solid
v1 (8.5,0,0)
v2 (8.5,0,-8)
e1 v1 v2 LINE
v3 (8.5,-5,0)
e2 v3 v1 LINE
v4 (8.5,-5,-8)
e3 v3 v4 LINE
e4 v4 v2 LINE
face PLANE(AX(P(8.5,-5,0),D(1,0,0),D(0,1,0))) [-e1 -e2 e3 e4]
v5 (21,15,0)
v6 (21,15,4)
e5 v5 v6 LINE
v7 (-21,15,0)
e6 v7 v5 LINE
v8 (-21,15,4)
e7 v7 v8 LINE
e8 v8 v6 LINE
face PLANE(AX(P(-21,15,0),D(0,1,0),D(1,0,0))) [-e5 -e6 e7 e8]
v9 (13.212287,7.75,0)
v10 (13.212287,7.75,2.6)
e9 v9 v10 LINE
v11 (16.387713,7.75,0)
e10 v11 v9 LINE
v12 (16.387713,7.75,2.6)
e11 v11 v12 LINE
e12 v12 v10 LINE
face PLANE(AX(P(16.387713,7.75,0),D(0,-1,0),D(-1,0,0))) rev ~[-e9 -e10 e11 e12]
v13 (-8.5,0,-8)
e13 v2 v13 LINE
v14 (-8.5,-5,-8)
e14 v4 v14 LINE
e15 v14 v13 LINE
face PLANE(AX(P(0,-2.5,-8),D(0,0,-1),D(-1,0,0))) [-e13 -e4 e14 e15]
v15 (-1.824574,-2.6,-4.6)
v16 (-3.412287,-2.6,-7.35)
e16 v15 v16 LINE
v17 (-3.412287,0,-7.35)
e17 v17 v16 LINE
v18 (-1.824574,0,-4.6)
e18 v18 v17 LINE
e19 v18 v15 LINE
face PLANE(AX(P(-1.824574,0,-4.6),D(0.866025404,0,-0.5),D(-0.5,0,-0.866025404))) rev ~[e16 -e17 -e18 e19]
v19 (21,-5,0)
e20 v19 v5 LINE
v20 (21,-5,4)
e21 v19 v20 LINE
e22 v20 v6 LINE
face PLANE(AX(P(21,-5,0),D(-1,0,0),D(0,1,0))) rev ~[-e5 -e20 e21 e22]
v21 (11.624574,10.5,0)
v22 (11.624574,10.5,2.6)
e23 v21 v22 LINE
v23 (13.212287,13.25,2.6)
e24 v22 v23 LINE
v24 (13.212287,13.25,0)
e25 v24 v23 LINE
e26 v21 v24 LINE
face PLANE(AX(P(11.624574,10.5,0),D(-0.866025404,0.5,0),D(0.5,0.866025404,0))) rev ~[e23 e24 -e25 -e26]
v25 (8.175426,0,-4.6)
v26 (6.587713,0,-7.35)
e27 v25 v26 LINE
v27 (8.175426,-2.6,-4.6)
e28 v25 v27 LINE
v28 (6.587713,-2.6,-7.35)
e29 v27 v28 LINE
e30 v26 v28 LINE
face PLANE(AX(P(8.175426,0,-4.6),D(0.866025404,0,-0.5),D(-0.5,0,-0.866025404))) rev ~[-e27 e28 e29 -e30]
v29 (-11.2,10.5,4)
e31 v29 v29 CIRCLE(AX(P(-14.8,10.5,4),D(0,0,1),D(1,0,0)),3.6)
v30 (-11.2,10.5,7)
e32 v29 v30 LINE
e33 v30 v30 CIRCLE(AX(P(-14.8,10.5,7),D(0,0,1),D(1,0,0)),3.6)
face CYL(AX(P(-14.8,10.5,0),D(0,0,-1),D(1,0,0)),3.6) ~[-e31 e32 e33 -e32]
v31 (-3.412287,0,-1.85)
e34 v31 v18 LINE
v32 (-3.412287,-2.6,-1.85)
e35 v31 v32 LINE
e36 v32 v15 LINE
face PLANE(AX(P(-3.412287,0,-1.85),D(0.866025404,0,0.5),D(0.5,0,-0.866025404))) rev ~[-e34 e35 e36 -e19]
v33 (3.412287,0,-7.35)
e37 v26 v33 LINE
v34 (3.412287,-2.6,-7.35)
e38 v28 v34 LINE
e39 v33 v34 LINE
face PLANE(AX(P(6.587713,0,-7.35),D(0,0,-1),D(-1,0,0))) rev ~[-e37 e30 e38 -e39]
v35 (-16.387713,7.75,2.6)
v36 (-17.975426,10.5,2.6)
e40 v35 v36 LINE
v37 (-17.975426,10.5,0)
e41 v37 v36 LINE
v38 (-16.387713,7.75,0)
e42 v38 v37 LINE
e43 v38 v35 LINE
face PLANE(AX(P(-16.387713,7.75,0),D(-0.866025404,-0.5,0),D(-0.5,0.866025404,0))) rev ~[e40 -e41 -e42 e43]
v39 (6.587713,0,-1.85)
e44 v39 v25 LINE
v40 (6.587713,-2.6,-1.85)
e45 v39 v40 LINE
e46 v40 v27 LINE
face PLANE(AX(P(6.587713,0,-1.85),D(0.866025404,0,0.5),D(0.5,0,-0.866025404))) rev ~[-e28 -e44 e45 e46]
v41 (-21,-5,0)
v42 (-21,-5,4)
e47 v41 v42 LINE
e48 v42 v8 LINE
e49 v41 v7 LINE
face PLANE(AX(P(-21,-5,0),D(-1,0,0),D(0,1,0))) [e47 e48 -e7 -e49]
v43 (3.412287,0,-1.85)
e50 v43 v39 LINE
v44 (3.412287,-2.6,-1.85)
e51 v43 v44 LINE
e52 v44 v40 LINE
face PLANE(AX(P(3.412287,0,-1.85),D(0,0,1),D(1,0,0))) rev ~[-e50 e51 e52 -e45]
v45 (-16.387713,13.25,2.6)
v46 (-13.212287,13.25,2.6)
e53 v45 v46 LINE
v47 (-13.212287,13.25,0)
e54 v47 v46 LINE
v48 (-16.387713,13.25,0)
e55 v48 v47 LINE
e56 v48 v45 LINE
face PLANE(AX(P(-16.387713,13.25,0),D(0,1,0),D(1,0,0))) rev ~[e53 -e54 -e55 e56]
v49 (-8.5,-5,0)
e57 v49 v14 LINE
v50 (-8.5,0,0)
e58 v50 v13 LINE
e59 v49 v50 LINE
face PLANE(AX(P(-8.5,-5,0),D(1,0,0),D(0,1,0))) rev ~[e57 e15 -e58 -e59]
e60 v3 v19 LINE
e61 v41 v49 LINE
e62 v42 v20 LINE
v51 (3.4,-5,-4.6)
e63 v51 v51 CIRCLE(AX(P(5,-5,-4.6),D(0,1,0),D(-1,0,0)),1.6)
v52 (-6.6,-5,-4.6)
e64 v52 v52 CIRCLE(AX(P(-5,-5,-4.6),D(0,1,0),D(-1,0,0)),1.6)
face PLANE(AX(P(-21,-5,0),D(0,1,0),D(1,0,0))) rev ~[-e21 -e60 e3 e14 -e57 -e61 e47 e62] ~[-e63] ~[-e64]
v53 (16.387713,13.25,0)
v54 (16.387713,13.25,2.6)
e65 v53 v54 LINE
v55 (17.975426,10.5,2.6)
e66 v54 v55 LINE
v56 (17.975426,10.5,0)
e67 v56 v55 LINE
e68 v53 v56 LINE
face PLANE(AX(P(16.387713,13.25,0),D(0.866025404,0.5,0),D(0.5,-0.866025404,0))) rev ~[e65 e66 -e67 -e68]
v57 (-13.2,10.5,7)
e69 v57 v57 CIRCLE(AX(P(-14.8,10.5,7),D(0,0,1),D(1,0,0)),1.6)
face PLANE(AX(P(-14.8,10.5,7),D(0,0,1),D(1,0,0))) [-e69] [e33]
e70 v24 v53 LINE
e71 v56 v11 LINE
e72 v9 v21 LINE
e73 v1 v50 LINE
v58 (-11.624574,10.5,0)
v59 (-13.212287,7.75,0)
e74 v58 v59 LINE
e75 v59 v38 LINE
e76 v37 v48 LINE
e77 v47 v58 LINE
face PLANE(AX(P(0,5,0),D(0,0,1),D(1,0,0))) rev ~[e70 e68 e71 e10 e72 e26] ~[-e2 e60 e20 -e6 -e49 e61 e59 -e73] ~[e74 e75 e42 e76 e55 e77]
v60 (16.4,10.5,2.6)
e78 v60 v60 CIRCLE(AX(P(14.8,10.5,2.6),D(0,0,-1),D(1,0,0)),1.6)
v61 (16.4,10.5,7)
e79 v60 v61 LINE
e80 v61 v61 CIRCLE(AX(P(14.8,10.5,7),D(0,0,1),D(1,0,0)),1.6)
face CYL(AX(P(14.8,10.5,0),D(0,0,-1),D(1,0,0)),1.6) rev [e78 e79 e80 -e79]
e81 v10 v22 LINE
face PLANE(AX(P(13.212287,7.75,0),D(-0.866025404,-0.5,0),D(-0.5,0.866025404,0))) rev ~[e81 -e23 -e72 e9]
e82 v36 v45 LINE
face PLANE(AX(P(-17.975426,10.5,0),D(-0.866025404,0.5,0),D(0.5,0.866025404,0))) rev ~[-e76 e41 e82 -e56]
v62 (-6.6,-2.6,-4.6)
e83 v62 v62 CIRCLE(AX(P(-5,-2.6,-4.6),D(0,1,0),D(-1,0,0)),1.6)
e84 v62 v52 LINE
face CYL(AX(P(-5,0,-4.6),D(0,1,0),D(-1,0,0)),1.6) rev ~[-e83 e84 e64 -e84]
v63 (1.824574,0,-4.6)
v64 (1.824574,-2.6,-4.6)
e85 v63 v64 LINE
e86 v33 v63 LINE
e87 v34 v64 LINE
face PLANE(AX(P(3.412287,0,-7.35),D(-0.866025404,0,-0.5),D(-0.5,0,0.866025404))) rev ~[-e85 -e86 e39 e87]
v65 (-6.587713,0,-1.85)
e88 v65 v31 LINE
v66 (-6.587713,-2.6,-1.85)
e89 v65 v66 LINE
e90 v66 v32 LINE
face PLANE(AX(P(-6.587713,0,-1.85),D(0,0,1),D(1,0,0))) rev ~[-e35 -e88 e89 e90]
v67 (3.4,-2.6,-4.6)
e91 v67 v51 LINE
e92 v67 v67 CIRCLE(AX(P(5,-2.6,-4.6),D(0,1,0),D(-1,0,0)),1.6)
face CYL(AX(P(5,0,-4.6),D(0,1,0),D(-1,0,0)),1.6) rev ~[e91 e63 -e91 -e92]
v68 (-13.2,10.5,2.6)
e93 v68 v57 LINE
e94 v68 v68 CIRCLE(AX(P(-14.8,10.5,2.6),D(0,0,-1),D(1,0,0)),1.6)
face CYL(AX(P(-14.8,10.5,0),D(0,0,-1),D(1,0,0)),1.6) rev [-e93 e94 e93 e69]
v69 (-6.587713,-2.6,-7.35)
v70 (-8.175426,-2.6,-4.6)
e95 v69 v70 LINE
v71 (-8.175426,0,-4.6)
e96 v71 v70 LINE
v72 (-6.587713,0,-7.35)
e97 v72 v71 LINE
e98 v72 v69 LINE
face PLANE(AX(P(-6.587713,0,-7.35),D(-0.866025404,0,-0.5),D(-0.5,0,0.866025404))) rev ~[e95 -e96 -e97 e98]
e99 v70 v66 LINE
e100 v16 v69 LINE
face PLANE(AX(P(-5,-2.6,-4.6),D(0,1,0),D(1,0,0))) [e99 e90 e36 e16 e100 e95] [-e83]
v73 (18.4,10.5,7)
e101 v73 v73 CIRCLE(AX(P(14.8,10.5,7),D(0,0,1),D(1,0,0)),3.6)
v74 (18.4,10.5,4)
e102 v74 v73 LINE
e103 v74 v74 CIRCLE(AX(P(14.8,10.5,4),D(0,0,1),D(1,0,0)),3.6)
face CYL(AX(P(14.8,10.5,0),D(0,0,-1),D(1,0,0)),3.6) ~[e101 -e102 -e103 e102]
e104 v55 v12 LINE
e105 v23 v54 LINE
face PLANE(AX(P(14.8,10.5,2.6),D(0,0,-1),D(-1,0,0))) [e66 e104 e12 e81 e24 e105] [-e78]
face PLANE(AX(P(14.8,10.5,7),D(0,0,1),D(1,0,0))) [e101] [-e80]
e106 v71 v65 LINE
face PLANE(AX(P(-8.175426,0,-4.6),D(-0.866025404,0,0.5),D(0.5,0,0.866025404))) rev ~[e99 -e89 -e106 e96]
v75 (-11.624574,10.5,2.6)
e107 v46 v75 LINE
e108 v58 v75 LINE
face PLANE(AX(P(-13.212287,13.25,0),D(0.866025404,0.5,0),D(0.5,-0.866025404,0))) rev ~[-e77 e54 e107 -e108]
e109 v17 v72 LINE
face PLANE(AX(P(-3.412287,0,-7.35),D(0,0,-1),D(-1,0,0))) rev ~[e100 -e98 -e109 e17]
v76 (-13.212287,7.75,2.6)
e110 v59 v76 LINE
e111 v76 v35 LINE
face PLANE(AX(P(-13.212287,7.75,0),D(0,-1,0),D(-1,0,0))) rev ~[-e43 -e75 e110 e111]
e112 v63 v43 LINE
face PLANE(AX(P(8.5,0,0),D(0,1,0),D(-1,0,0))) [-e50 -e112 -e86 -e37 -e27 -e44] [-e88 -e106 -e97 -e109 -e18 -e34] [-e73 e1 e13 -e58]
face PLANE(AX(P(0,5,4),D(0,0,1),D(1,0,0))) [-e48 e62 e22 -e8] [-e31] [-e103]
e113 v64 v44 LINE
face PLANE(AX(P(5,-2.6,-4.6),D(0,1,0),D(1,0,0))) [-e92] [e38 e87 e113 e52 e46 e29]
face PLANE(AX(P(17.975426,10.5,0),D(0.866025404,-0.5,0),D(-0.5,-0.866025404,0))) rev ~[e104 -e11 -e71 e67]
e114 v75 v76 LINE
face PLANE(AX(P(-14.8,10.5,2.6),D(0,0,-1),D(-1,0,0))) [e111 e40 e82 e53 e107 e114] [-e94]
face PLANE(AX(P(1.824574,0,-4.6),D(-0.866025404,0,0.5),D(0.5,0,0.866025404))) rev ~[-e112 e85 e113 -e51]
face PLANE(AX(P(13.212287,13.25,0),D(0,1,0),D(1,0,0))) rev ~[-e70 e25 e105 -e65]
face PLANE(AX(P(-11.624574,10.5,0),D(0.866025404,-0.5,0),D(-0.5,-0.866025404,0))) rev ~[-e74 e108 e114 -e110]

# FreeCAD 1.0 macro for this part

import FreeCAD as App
import Part
import Sketcher
from FreeCAD import Vector
Q = App.Units.Quantity

doc = App.newDocument("Part")
body = doc.addObject("PartDesign::Body", "Body")

# Sketch on XY plane
sketch1 = body.newObject("Sketcher::SketchObject", "Sketch")
sketch1.AttachmentSupport = (doc.getObject("XY_Plane"), [""])
sketch1.MapMode = "FlatFace"
sketch1.addGeometry(Part.LineSegment(Vector(-21, 15, 0), Vector(-21, -5, 0)), False)
sketch1.addGeometry(Part.LineSegment(Vector(-21, -5, 0), Vector(21, -5, 0)), False)
sketch1.addGeometry(Part.LineSegment(Vector(21, -5, 0), Vector(21, 15, 0)), False)
sketch1.addGeometry(Part.LineSegment(Vector(21, 15, 0), Vector(-21, 15, 0)), False)
sketch1.addGeometry(Part.Circle(Vector(-14.8, 10.5, 0), Vector(0, 0, 1), 3.6), False)
sketch1.addGeometry(Part.Circle(Vector(14.8, 10.5, 0), Vector(0, 0, 1), 3.6), False)
sketch1.addConstraint(Sketcher.Constraint("Coincident", 0, 2, 1, 1))
sketch1.addConstraint(Sketcher.Constraint("Coincident", 1, 2, 2, 1))
sketch1.addConstraint(Sketcher.Constraint("Coincident", 2, 2, 3, 1))
sketch1.addConstraint(Sketcher.Constraint("Coincident", 3, 2, 0, 1))
sketch1.addConstraint(Sketcher.Constraint("Vertical", 0))
sketch1.addConstraint(Sketcher.Constraint("Horizontal", 1))
sketch1.addConstraint(Sketcher.Constraint("Vertical", 2))
sketch1.addConstraint(Sketcher.Constraint("Horizontal", 3))
sketch1.addConstraint(Sketcher.Constraint("Equal", 4, 5))
sketch1.addConstraint(Sketcher.Constraint("Symmetric", 4, 3, 5, 3, -2))
sketch1.addConstraint(Sketcher.Constraint("Diameter", 4, Q("7.2 mm")))
sketch1.addConstraint(Sketcher.Constraint("DistanceX", 1, 1, 1, 2, Q("42 mm")))
sketch1.addConstraint(Sketcher.Constraint("DistanceY", 0, 2, 0, 1, Q("20 mm")))
sketch1.addConstraint(Sketcher.Constraint("DistanceX", 0, 2, -1, 1, Q("21 mm")))
sketch1.addConstraint(Sketcher.Constraint("DistanceY", 0, 2, -1, 1, Q("5 mm")))
sketch1.addConstraint(Sketcher.Constraint("DistanceX", 4, 3, -1, 1, Q("14.8 mm")))
sketch1.addConstraint(Sketcher.Constraint("DistanceY", -1, 1, 4, 3, Q("10.5 mm")))
pad1 = body.newObject("PartDesign::Pad", "Pad")
pad1.Profile = sketch1
pad1.Length = 4

# Sketch on XY plane
sketch2 = body.newObject("Sketcher::SketchObject", "Sketch001")
sketch2.AttachmentSupport = (doc.getObject("XY_Plane"), [""])
sketch2.MapMode = "FlatFace"
sketch2.addGeometry(Part.Circle(Vector(-14.8, 10.5, 0), Vector(0, 0, 1), 3.6), False)
sketch2.addGeometry(Part.Circle(Vector(-14.8, 10.5, 0), Vector(0, 0, 1), 1.6), False)
sketch2.addGeometry(Part.Circle(Vector(14.8, 10.5, 0), Vector(0, 0, 1), 3.6), False)
sketch2.addGeometry(Part.Circle(Vector(14.8, 10.5, 0), Vector(0, 0, 1), 1.6), False)
sketch2.addConstraint(Sketcher.Constraint("Coincident", 1, 3, 0, 3))
sketch2.addConstraint(Sketcher.Constraint("Coincident", 3, 3, 2, 3))
sketch2.addConstraint(Sketcher.Constraint("Equal", 0, 2))
sketch2.addConstraint(Sketcher.Constraint("Equal", 1, 3))
sketch2.addConstraint(Sketcher.Constraint("Symmetric", 0, 3, 2, 3, -2))
sketch2.addConstraint(Sketcher.Constraint("Diameter", 0, Q("7.2 mm")))
sketch2.addConstraint(Sketcher.Constraint("Diameter", 1, Q("3.2 mm")))
sketch2.addConstraint(Sketcher.Constraint("DistanceX", 0, 3, -1, 1, Q("14.8 mm")))
sketch2.addConstraint(Sketcher.Constraint("DistanceY", -1, 1, 0, 3, Q("10.5 mm")))
pad2 = body.newObject("PartDesign::Pad", "Pad001")
pad2.Profile = sketch2
pad2.Length = 7

# Sketch on XY plane
sketch3 = body.newObject("Sketcher::SketchObject", "Sketch002")
sketch3.AttachmentSupport = (doc.getObject("XY_Plane"), [""])
sketch3.MapMode = "FlatFace"
sketch3.addGeometry(Part.LineSegment(Vector(11.6, 10.5, 0), Vector(13.2, 13.2, 0)), False)
sketch3.addGeometry(Part.LineSegment(Vector(13.2, 13.2, 0), Vector(16.4, 13.2, 0)), False)
sketch3.addGeometry(Part.LineSegment(Vector(16.4, 13.2, 0), Vector(18, 10.5, 0)), False)
sketch3.addGeometry(Part.LineSegment(Vector(18, 10.5, 0), Vector(16.4, 7.8, 0)), False)
sketch3.addGeometry(Part.LineSegment(Vector(16.4, 7.8, 0), Vector(13.2, 7.8, 0)), False)
sketch3.addGeometry(Part.LineSegment(Vector(13.2, 7.8, 0), Vector(11.6, 10.5, 0)), False)
sketch3.addGeometry(Part.LineSegment(Vector(-18, 10.5, 0), Vector(-16.4, 13.2, 0)), False)
sketch3.addGeometry(Part.LineSegment(Vector(-16.4, 13.2, 0), Vector(-13.2, 13.2, 0)), False)
sketch3.addGeometry(Part.LineSegment(Vector(-13.2, 13.2, 0), Vector(-11.6, 10.5, 0)), False)
sketch3.addGeometry(Part.LineSegment(Vector(-11.6, 10.5, 0), Vector(-13.2, 7.8, 0)), False)
sketch3.addGeometry(Part.LineSegment(Vector(-13.2, 7.8, 0), Vector(-16.4, 7.8, 0)), False)
sketch3.addGeometry(Part.LineSegment(Vector(-16.4, 7.8, 0), Vector(-18, 10.5, 0)), False)
sketch3.addConstraint(Sketcher.Constraint("Coincident", 0, 2, 1, 1))
sketch3.addConstraint(Sketcher.Constraint("Coincident", 1, 2, 2, 1))
sketch3.addConstraint(Sketcher.Constraint("Coincident", 2, 2, 3, 1))
sketch3.addConstraint(Sketcher.Constraint("Coincident", 3, 2, 4, 1))
sketch3.addConstraint(Sketcher.Constraint("Coincident", 4, 2, 5, 1))
sketch3.addConstraint(Sketcher.Constraint("Coincident", 5, 2, 0, 1))
sketch3.addConstraint(Sketcher.Constraint("Coincident", 6, 2, 7, 1))
sketch3.addConstraint(Sketcher.Constraint("Coincident", 7, 2, 8, 1))
sketch3.addConstraint(Sketcher.Constraint("Coincident", 8, 2, 9, 1))
sketch3.addConstraint(Sketcher.Constraint("Coincident", 9, 2, 10, 1))
sketch3.addConstraint(Sketcher.Constraint("Coincident", 10, 2, 11, 1))
sketch3.addConstraint(Sketcher.Constraint("Coincident", 11, 2, 6, 1))
sketch3.addConstraint(Sketcher.Constraint("Horizontal", 1))
sketch3.addConstraint(Sketcher.Constraint("Horizontal", 4))
sketch3.addConstraint(Sketcher.Constraint("Horizontal", 7))
sketch3.addConstraint(Sketcher.Constraint("Horizontal", 10))
sketch3.addConstraint(Sketcher.Constraint("Symmetric", 1, 2, 6, 2, -2))
sketch3.addConstraint(Sketcher.Constraint("Symmetric", 5, 2, 8, 2, -2))
sketch3.addConstraint(Sketcher.Constraint("Symmetric", 4, 2, 9, 2, -2))
sketch3.addConstraint(Sketcher.Constraint("Symmetric", 2, 2, 11, 2, -2))
sketch3.addConstraint(Sketcher.Constraint("Parallel", 0, 3))
sketch3.addConstraint(Sketcher.Constraint("Parallel", 2, 5))
sketch3.addConstraint(Sketcher.Constraint("Parallel", 3, 6))
sketch3.addConstraint(Sketcher.Constraint("Parallel", 5, 8))
sketch3.addConstraint(Sketcher.Constraint("Parallel", 8, 11))
sketch3.addConstraint(Sketcher.Constraint("Horizontal", 2, 2, 5, 2))
sketch3.addConstraint(Sketcher.Constraint("Vertical", 1, 2, 3, 2))
sketch3.addConstraint(Sketcher.Constraint("Angle", 0, Q("60 deg")))
sketch3.addConstraint(Sketcher.Constraint("DistanceY", -1, 1, 2, 2, Q("10.5 mm")))
sketch3.addConstraint(Sketcher.Constraint("DistanceY", 3, 2, 1, 2, Q("5.5 mm")))
sketch3.addConstraint(Sketcher.Constraint("DistanceX", 6, 2, 0, 2, Q("29.6 mm")))
sketch3.addConstraint(Sketcher.Constraint("DistanceX", 1, 1, 1, 2, Q("3.175426 mm")))
pocket1 = body.newObject("PartDesign::Pocket", "Pocket")
pocket1.Profile = sketch3
pocket1.Length = 2.6
pocket1.Reversed = True

# Sketch on XY plane
sketch4 = body.newObject("Sketcher::SketchObject", "Sketch003")
sketch4.AttachmentSupport = (doc.getObject("XY_Plane"), [""])
sketch4.MapMode = "FlatFace"
sketch4.addGeometry(Part.LineSegment(Vector(8, 0, 0), Vector(8, -5, 0)), False)
sketch4.addGeometry(Part.LineSegment(Vector(8, -5, 0), Vector(-8, -5, 0)), False)
sketch4.addGeometry(Part.LineSegment(Vector(-8, -5, 0), Vector(-8, 0, 0)), False)
sketch4.addGeometry(Part.LineSegment(Vector(-8, 0, 0), Vector(8, 0, 0)), False)
sketch4.addConstraint(Sketcher.Constraint("Coincident", 0, 2, 1, 1))
sketch4.addConstraint(Sketcher.Constraint("Coincident", 1, 2, 2, 1))
sketch4.addConstraint(Sketcher.Constraint("Coincident", 2, 2, 3, 1))
sketch4.addConstraint(Sketcher.Constraint("Coincident", 3, 2, 0, 1))
sketch4.addConstraint(Sketcher.Constraint("Vertical", 0))
sketch4.addConstraint(Sketcher.Constraint("Horizontal", 1))
sketch4.addConstraint(Sketcher.Constraint("Vertical", 2))
sketch4.addConstraint(Sketcher.Constraint("Horizontal", 3))
sketch4.addConstraint(Sketcher.Constraint("Symmetric", 2, 2, 3, 2, -1, 1))
sketch4.addConstraint(Sketcher.Constraint("DistanceX", 1, 2, 1, 1, Q("17 mm")))
sketch4.addConstraint(Sketcher.Constraint("DistanceY", 0, 2, 0, 1, Q("5 mm")))
pad3 = body.newObject("PartDesign::Pad", "Pad002")
pad3.Profile = sketch4
pad3.Length = 8
pad3.Reversed = True

# Sketch on XZ plane
sketch5 = body.newObject("Sketcher::SketchObject", "Sketch004")
sketch5.AttachmentSupport = (doc.getObject("XZ_Plane"), [""])
sketch5.MapMode = "FlatFace"
sketch5.addGeometry(Part.Circle(Vector(-5, -4.6, 0), Vector(0, 0, 1), 1.6), False)
sketch5.addGeometry(Part.Circle(Vector(5, -4.6, 0), Vector(0, 0, 1), 1.6), False)
sketch5.addConstraint(Sketcher.Constraint("Equal", 0, 1))
sketch5.addConstraint(Sketcher.Constraint("Symmetric", 0, 3, 1, 3, -2))
sketch5.addConstraint(Sketcher.Constraint("Diameter", 0, Q("3.2 mm")))
sketch5.addConstraint(Sketcher.Constraint("DistanceX", 0, 3, -1, 1, Q("5 mm")))
sketch5.addConstraint(Sketcher.Constraint("DistanceY", 0, 3, -1, 1, Q("4.6 mm")))
pocket2 = body.newObject("PartDesign::Pocket", "Pocket001")
pocket2.Profile = sketch5
pocket2.Length = 6.6
pocket2.Reversed = True

# Sketch on XZ plane
sketch6 = body.newObject("Sketcher::SketchObject", "Sketch005")
sketch6.AttachmentSupport = (doc.getObject("XZ_Plane"), [""])
sketch6.MapMode = "FlatFace"
sketch6.addGeometry(Part.LineSegment(Vector(1.8, -4.6, 0), Vector(3.4, -1.9, 0)), False)
sketch6.addGeometry(Part.LineSegment(Vector(3.4, -1.9, 0), Vector(6.6, -1.9, 0)), False)
sketch6.addGeometry(Part.LineSegment(Vector(6.6, -1.9, 0), Vector(8.2, -4.6, 0)), False)
sketch6.addGeometry(Part.LineSegment(Vector(8.2, -4.6, 0), Vector(6.6, -7.3, 0)), False)
sketch6.addGeometry(Part.LineSegment(Vector(6.6, -7.3, 0), Vector(3.4, -7.3, 0)), False)
sketch6.addGeometry(Part.LineSegment(Vector(3.4, -7.3, 0), Vector(1.8, -4.6, 0)), False)
sketch6.addGeometry(Part.LineSegment(Vector(-8.2, -4.6, 0), Vector(-6.6, -1.9, 0)), False)
sketch6.addGeometry(Part.LineSegment(Vector(-6.6, -1.9, 0), Vector(-3.4, -1.9, 0)), False)
sketch6.addGeometry(Part.LineSegment(Vector(-3.4, -1.9, 0), Vector(-1.8, -4.6, 0)), False)
sketch6.addGeometry(Part.LineSegment(Vector(-1.8, -4.6, 0), Vector(-3.4, -7.3, 0)), False)
sketch6.addGeometry(Part.LineSegment(Vector(-3.4, -7.3, 0), Vector(-6.6, -7.3, 0)), False)
sketch6.addGeometry(Part.LineSegment(Vector(-6.6, -7.3, 0), Vector(-8.2, -4.6, 0)), False)
sketch6.addConstraint(Sketcher.Constraint("Coincident", 0, 2, 1, 1))
sketch6.addConstraint(Sketcher.Constraint("Coincident", 1, 2, 2, 1))
sketch6.addConstraint(Sketcher.Constraint("Coincident", 2, 2, 3, 1))
sketch6.addConstraint(Sketcher.Constraint("Coincident", 3, 2, 4, 1))
sketch6.addConstraint(Sketcher.Constraint("Coincident", 4, 2, 5, 1))
sketch6.addConstraint(Sketcher.Constraint("Coincident", 5, 2, 0, 1))
sketch6.addConstraint(Sketcher.Constraint("Coincident", 6, 2, 7, 1))
sketch6.addConstraint(Sketcher.Constraint("Coincident", 7, 2, 8, 1))
sketch6.addConstraint(Sketcher.Constraint("Coincident", 8, 2, 9, 1))
sketch6.addConstraint(Sketcher.Constraint("Coincident", 9, 2, 10, 1))
sketch6.addConstraint(Sketcher.Constraint("Coincident", 10, 2, 11, 1))
sketch6.addConstraint(Sketcher.Constraint("Coincident", 11, 2, 6, 1))
sketch6.addConstraint(Sketcher.Constraint("Horizontal", 1))
sketch6.addConstraint(Sketcher.Constraint("Horizontal", 4))
sketch6.addConstraint(Sketcher.Constraint("Horizontal", 7))
sketch6.addConstraint(Sketcher.Constraint("Horizontal", 10))
sketch6.addConstraint(Sketcher.Constraint("Symmetric", 1, 2, 6, 2, -2))
sketch6.addConstraint(Sketcher.Constraint("Symmetric", 5, 2, 8, 2, -2))
sketch6.addConstraint(Sketcher.Constraint("Symmetric", 4, 2, 9, 2, -2))
sketch6.addConstraint(Sketcher.Constraint("Symmetric", 2, 2, 11, 2, -2))
sketch6.addConstraint(Sketcher.Constraint("Parallel", 0, 3))
sketch6.addConstraint(Sketcher.Constraint("Parallel", 2, 5))
sketch6.addConstraint(Sketcher.Constraint("Parallel", 3, 6))
sketch6.addConstraint(Sketcher.Constraint("Parallel", 5, 8))
sketch6.addConstraint(Sketcher.Constraint("Parallel", 8, 11))
sketch6.addConstraint(Sketcher.Constraint("Horizontal", 2, 2, 5, 2))
sketch6.addConstraint(Sketcher.Constraint("Vertical", 1, 2, 3, 2))
sketch6.addConstraint(Sketcher.Constraint("Angle", 0, Q("60 deg")))
sketch6.addConstraint(Sketcher.Constraint("DistanceX", 6, 2, 0, 2, Q("10 mm")))
sketch6.addConstraint(Sketcher.Constraint("DistanceY", 2, 2, -1, 1, Q("4.6 mm")))
sketch6.addConstraint(Sketcher.Constraint("DistanceY", 3, 2, 1, 2, Q("5.5 mm")))
sketch6.addConstraint(Sketcher.Constraint("DistanceX", 1, 1, 1, 2, Q("3.175426 mm")))
pocket3 = body.newObject("PartDesign::Pocket", "Pocket002")
pocket3.Profile = sketch6
pocket3.Length = 2.6
pocket3.Reversed = True

doc.recompute()
